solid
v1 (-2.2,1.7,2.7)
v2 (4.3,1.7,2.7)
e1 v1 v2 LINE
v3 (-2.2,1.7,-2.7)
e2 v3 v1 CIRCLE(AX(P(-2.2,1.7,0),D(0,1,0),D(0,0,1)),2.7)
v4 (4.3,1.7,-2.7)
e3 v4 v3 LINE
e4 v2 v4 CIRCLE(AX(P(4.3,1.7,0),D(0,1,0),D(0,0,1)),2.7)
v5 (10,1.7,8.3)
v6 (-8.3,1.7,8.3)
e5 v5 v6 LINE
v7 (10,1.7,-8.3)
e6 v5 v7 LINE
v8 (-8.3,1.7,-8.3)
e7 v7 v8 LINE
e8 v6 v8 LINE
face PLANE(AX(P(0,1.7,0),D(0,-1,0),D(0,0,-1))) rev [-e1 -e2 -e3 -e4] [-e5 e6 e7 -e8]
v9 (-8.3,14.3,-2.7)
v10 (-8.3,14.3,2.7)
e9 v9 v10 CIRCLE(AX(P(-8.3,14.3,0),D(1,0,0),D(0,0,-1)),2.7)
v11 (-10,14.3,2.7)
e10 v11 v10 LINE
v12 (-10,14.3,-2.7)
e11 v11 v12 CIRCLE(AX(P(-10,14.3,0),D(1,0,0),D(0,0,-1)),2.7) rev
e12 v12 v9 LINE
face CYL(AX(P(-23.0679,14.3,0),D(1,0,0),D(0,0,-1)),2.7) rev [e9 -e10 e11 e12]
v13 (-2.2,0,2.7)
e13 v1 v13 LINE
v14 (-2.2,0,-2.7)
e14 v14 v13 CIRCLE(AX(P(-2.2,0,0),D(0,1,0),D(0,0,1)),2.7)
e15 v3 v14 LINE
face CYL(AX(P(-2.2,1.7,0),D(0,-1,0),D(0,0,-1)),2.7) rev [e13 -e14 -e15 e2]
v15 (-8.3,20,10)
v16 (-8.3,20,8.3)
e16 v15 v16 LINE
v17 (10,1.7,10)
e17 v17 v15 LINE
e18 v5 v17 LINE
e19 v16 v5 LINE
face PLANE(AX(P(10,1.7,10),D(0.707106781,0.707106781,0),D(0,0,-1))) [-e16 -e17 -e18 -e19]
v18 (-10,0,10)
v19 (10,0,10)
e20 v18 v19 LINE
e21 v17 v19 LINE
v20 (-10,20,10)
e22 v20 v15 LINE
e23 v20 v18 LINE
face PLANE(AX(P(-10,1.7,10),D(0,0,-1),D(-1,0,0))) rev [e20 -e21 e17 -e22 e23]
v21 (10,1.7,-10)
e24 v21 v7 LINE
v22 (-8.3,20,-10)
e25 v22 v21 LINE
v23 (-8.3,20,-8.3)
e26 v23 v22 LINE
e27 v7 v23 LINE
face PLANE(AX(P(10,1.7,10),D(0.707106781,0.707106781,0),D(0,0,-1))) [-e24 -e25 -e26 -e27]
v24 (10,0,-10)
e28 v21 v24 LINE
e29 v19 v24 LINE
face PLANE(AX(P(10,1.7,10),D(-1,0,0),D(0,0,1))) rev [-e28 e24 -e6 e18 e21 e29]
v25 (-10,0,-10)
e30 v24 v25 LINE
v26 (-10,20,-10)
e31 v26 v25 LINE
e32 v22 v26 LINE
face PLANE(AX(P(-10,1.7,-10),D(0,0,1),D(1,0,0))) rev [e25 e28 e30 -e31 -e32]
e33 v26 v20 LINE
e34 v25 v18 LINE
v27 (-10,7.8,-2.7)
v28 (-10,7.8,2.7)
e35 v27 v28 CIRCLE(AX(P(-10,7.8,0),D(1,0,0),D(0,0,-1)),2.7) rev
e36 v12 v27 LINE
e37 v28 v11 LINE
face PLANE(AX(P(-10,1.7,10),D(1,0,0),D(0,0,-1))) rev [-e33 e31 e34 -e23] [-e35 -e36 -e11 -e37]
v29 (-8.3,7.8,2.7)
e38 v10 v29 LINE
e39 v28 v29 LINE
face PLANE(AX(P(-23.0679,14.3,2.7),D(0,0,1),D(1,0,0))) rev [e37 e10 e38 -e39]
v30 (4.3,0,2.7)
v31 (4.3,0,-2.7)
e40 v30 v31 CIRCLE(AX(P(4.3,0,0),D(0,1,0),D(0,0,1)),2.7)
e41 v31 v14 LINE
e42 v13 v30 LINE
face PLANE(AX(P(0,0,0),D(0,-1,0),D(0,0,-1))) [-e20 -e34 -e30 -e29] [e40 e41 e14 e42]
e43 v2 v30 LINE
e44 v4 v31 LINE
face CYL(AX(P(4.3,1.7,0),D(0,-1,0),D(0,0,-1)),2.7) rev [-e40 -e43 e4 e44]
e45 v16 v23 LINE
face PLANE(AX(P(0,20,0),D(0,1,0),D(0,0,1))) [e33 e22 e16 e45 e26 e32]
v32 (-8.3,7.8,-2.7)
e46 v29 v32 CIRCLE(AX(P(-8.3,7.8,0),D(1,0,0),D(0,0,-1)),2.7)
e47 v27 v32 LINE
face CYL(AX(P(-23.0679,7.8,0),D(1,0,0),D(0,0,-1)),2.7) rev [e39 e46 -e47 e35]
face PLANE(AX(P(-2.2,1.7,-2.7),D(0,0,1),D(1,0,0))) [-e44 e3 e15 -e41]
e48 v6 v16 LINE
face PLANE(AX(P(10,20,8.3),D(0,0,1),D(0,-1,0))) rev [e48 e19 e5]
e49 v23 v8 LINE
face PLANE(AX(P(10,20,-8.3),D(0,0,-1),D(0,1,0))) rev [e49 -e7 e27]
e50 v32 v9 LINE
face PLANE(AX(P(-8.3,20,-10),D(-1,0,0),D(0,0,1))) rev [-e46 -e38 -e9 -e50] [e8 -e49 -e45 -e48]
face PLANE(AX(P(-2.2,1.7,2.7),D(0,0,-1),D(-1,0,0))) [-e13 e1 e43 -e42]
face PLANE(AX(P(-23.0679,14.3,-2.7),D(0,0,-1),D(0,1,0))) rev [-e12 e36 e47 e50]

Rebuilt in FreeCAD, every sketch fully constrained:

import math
import FreeCAD as App
import Part
import Sketcher

V = App.Vector


def edges_at(feature, points):
    """Names of the edges that pass closest to the given points."""
    edges = feature.Shape.Edges
    near = lambda p: min(range(len(edges)), key=lambda i: edges[i].distToShape(Part.Vertex(*p))[0])
    return sorted({f"Edge{near(p) + 1}" for p in points})

doc = App.newDocument("Part")
body = doc.addObject("PartDesign::Body", "Body")

# Sketch on XZ plane
sketch1 = body.newObject("Sketcher::SketchObject", "Sketch")
sketch1.AttachmentSupport = (doc.getObject("XZ_Plane"), [""])
sketch1.MapMode = "FlatFace"
sketch1.addGeometry(Part.LineSegment(V(-10, -10, 0), V(-10, 10, 0)), False)
sketch1.addGeometry(Part.LineSegment(V(-10, 10, 0), V(10, 10, 0)), False)
sketch1.addGeometry(Part.LineSegment(V(10, 10, 0), V(10, -10, 0)), False)
sketch1.addGeometry(Part.LineSegment(V(10, -10, 0), V(-10, -10, 0)), False)
sketch1.addGeometry(Part.ArcOfCircle(Part.Circle(V(-2.2, 0, 0), V(0, 0, 1), 2.7), math.radians(90), math.radians(270)), False)
sketch1.addGeometry(Part.LineSegment(V(-2.2, -2.7, 0), V(4.3, -2.7, 0)), False)
sketch1.addGeometry(Part.ArcOfCircle(Part.Circle(V(4.3, 0, 0), V(0, 0, 1), 2.7), math.radians(-90), math.radians(90)), False)
sketch1.addGeometry(Part.LineSegment(V(4.3, 2.7, 0), V(-2.2, 2.7, 0)), False)
sketch1.addConstraint(Sketcher.Constraint("Coincident", 0, 2, 1, 1))
sketch1.addConstraint(Sketcher.Constraint("Coincident", 1, 2, 2, 1))
sketch1.addConstraint(Sketcher.Constraint("Coincident", 2, 2, 3, 1))
sketch1.addConstraint(Sketcher.Constraint("Coincident", 3, 2, 0, 1))
sketch1.addConstraint(Sketcher.Constraint("Tangent", 4, 2, 5, 1))
sketch1.addConstraint(Sketcher.Constraint("Tangent", 5, 2, 6, 1))
sketch1.addConstraint(Sketcher.Constraint("Tangent", 6, 2, 7, 1))
sketch1.addConstraint(Sketcher.Constraint("Tangent", 7, 2, 4, 1))
sketch1.addConstraint(Sketcher.Constraint("Vertical", 0))
sketch1.addConstraint(Sketcher.Constraint("Horizontal", 1))
sketch1.addConstraint(Sketcher.Constraint("Vertical", 2))
sketch1.addConstraint(Sketcher.Constraint("Horizontal", 3))
sketch1.addConstraint(Sketcher.Constraint("Horizontal", 5))
sketch1.addConstraint(Sketcher.Constraint("Horizontal", 7))
sketch1.addConstraint(Sketcher.Constraint("Symmetric", 0, 2, 2, 2, -1, 1))
sketch1.addConstraint(Sketcher.Constraint("PointOnObject", 4, 3, -1))
sketch1.addConstraint(Sketcher.Constraint("Equal", 3, 0))
sketch1.addConstraint(Sketcher.Constraint("Radius", 4, 2.7))
sketch1.addConstraint(Sketcher.Constraint("DistanceX", 1, 1, 1, 2, 20.0))
sketch1.addConstraint(Sketcher.Constraint("DistanceX", 5, 1, 5, 2, 6.5))
sketch1.addConstraint(Sketcher.Constraint("DistanceX", 4, 3, -1, 1, 2.2))
pad1 = body.newObject("PartDesign::Pad", "Pad")
pad1.Profile = sketch1
pad1.Length = 1.7
pad1.Reversed = True

# Sketch on XZ plane
sketch2 = body.newObject("Sketcher::SketchObject", "Sketch001")
sketch2.AttachmentSupport = (doc.getObject("XZ_Plane"), [""])
sketch2.MapMode = "FlatFace"
sketch2.AttachmentOffset = App.Placement(V(0, 0, -1.7), App.Rotation())
sketch2.addGeometry(Part.LineSegment(V(-10, -10, 0), V(-10, 10, 0)), False)
sketch2.addGeometry(Part.LineSegment(V(-10, 10, 0), V(-8.3, 10, 0)), False)
sketch2.addGeometry(Part.LineSegment(V(-8.3, 10, 0), V(-8.3, -10, 0)), False)
sketch2.addGeometry(Part.LineSegment(V(-8.3, -10, 0), V(-10, -10, 0)), False)
sketch2.addConstraint(Sketcher.Constraint("Coincident", 0, 2, 1, 1))
sketch2.addConstraint(Sketcher.Constraint("Coincident", 1, 2, 2, 1))
sketch2.addConstraint(Sketcher.Constraint("Coincident", 2, 2, 3, 1))
sketch2.addConstraint(Sketcher.Constraint("Coincident", 3, 2, 0, 1))
sketch2.addConstraint(Sketcher.Constraint("Vertical", 0))
sketch2.addConstraint(Sketcher.Constraint("Horizontal", 1))
sketch2.addConstraint(Sketcher.Constraint("Vertical", 2))
sketch2.addConstraint(Sketcher.Constraint("Horizontal", 3))
sketch2.addConstraint(Sketcher.Constraint("DistanceY", 0, 1, 0, 2, 20.0))
sketch2.addConstraint(Sketcher.Constraint("DistanceX", 1, 1, 1, 2, 1.7))
sketch2.addConstraint(Sketcher.Constraint("DistanceX", 0, 2, -1, 1, 10.0))
sketch2.addConstraint(Sketcher.Constraint("DistanceY", -1, 1, 0, 2, 10.0))
pad2 = body.newObject("PartDesign::Pad", "Pad001")
pad2.Profile = sketch2
pad2.Length = 18.3
pad2.Reversed = True

# Sketch on YZ plane
sketch3 = body.newObject("Sketcher::SketchObject", "Sketch002")
sketch3.AttachmentSupport = (doc.getObject("YZ_Plane"), [""])
sketch3.MapMode = "FlatFace"
sketch3.AttachmentOffset = App.Placement(V(0, 0, -8.3), App.Rotation())
sketch3.addGeometry(Part.LineSegment(V(7.8, -2.7, 0), V(14.3, -2.7, 0)), False)
sketch3.addGeometry(Part.ArcOfCircle(Part.Circle(V(14.3, 0, 0), V(0, 0, 1), 2.7), math.radians(-90), math.radians(90)), False)
sketch3.addGeometry(Part.LineSegment(V(14.3, 2.7, 0), V(7.8, 2.7, 0)), False)
sketch3.addGeometry(Part.ArcOfCircle(Part.Circle(V(7.8, 0, 0), V(0, 0, 1), 2.7), math.radians(90), math.radians(270)), False)
sketch3.addConstraint(Sketcher.Constraint("Tangent", 0, 2, 1, 1))
sketch3.addConstraint(Sketcher.Constraint("Tangent", 1, 2, 2, 1))
sketch3.addConstraint(Sketcher.Constraint("Tangent", 2, 2, 3, 1))
sketch3.addConstraint(Sketcher.Constraint("Tangent", 3, 2, 0, 1))
sketch3.addConstraint(Sketcher.Constraint("Horizontal", 0))
sketch3.addConstraint(Sketcher.Constraint("Horizontal", 2))
sketch3.addConstraint(Sketcher.Constraint("PointOnObject", 1, 3, -1))
sketch3.addConstraint(Sketcher.Constraint("Radius", 1, 2.7))
sketch3.addConstraint(Sketcher.Constraint("DistanceX", 0, 1, 0, 2, 6.5))
sketch3.addConstraint(Sketcher.Constraint("DistanceX", -1, 1, 1, 3, 14.3))
pocket1 = body.newObject("PartDesign::Pocket", "Pocket")
pocket1.Profile = sketch3
pocket1.Length = 1.7

# Sketch on YZ plane
sketch4 = body.newObject("Sketcher::SketchObject", "Sketch003")
sketch4.AttachmentSupport = (doc.getObject("YZ_Plane"), [""])
sketch4.MapMode = "FlatFace"
sketch4.AttachmentOffset = App.Placement(V(0, 0, -8.3), App.Rotation())
sketch4.addGeometry(Part.LineSegment(V(20, 10, 0), V(1.7, 10, 0)), False)
sketch4.addGeometry(Part.LineSegment(V(1.7, 10, 0), V(1.7, 8.3, 0)), False)
sketch4.addGeometry(Part.LineSegment(V(1.7, 8.3, 0), V(20, 8.3, 0)), False)
sketch4.addGeometry(Part.LineSegment(V(20, 8.3, 0), V(20, 10, 0)), False)
sketch4.addGeometry(Part.LineSegment(V(20, -8.3, 0), V(1.7, -8.3, 0)), False)
sketch4.addGeometry(Part.LineSegment(V(1.7, -8.3, 0), V(1.7, -10, 0)), False)
sketch4.addGeometry(Part.LineSegment(V(1.7, -10, 0), V(20, -10, 0)), False)
sketch4.addGeometry(Part.LineSegment(V(20, -10, 0), V(20, -8.3, 0)), False)
sketch4.addConstraint(Sketcher.Constraint("Coincident", 0, 2, 1, 1))
sketch4.addConstraint(Sketcher.Constraint("Coincident", 1, 2, 2, 1))
sketch4.addConstraint(Sketcher.Constraint("Coincident", 2, 2, 3, 1))
sketch4.addConstraint(Sketcher.Constraint("Coincident", 3, 2, 0, 1))
sketch4.addConstraint(Sketcher.Constraint("Coincident", 4, 2, 5, 1))
sketch4.addConstraint(Sketcher.Constraint("Coincident", 5, 2, 6, 1))
sketch4.addConstraint(Sketcher.Constraint("Coincident", 6, 2, 7, 1))
sketch4.addConstraint(Sketcher.Constraint("Coincident", 7, 2, 4, 1))
sketch4.addConstraint(Sketcher.Constraint("Horizontal", 0))
sketch4.addConstraint(Sketcher.Constraint("Vertical", 1))
sketch4.addConstraint(Sketcher.Constraint("Horizontal", 2))
sketch4.addConstraint(Sketcher.Constraint("Vertical", 3))
sketch4.addConstraint(Sketcher.Constraint("Horizontal", 4))
sketch4.addConstraint(Sketcher.Constraint("Vertical", 5))
sketch4.addConstraint(Sketcher.Constraint("Horizontal", 6))
sketch4.addConstraint(Sketcher.Constraint("Vertical", 7))
sketch4.addConstraint(Sketcher.Constraint("Symmetric", 1, 2, 4, 2, -1))
sketch4.addConstraint(Sketcher.Constraint("Symmetric", 3, 2, 6, 2, -1))
sketch4.addConstraint(Sketcher.Constraint("DistanceX", 0, 2, 0, 1, 18.3))
sketch4.addConstraint(Sketcher.Constraint("DistanceY", 1, 2, 1, 1, 1.7))
sketch4.addConstraint(Sketcher.Constraint("DistanceY", -1, 1, 0, 2, 10.0))
sketch4.addConstraint(Sketcher.Constraint("DistanceX", -1, 1, 2, 2, 20.0))
pad3 = body.newObject("PartDesign::Pad", "Pad002")
pad3.Profile = sketch4
pad3.Length = 18.3
doc.recompute()

chamfer = body.newObject("PartDesign::Chamfer", "Chamfer")
chamfer.Base = (pad3, edges_at(pad3, [(10, 20, -9.15), (10, 20, 9.15)]))
chamfer.Size = 18.3

doc.recompute()
